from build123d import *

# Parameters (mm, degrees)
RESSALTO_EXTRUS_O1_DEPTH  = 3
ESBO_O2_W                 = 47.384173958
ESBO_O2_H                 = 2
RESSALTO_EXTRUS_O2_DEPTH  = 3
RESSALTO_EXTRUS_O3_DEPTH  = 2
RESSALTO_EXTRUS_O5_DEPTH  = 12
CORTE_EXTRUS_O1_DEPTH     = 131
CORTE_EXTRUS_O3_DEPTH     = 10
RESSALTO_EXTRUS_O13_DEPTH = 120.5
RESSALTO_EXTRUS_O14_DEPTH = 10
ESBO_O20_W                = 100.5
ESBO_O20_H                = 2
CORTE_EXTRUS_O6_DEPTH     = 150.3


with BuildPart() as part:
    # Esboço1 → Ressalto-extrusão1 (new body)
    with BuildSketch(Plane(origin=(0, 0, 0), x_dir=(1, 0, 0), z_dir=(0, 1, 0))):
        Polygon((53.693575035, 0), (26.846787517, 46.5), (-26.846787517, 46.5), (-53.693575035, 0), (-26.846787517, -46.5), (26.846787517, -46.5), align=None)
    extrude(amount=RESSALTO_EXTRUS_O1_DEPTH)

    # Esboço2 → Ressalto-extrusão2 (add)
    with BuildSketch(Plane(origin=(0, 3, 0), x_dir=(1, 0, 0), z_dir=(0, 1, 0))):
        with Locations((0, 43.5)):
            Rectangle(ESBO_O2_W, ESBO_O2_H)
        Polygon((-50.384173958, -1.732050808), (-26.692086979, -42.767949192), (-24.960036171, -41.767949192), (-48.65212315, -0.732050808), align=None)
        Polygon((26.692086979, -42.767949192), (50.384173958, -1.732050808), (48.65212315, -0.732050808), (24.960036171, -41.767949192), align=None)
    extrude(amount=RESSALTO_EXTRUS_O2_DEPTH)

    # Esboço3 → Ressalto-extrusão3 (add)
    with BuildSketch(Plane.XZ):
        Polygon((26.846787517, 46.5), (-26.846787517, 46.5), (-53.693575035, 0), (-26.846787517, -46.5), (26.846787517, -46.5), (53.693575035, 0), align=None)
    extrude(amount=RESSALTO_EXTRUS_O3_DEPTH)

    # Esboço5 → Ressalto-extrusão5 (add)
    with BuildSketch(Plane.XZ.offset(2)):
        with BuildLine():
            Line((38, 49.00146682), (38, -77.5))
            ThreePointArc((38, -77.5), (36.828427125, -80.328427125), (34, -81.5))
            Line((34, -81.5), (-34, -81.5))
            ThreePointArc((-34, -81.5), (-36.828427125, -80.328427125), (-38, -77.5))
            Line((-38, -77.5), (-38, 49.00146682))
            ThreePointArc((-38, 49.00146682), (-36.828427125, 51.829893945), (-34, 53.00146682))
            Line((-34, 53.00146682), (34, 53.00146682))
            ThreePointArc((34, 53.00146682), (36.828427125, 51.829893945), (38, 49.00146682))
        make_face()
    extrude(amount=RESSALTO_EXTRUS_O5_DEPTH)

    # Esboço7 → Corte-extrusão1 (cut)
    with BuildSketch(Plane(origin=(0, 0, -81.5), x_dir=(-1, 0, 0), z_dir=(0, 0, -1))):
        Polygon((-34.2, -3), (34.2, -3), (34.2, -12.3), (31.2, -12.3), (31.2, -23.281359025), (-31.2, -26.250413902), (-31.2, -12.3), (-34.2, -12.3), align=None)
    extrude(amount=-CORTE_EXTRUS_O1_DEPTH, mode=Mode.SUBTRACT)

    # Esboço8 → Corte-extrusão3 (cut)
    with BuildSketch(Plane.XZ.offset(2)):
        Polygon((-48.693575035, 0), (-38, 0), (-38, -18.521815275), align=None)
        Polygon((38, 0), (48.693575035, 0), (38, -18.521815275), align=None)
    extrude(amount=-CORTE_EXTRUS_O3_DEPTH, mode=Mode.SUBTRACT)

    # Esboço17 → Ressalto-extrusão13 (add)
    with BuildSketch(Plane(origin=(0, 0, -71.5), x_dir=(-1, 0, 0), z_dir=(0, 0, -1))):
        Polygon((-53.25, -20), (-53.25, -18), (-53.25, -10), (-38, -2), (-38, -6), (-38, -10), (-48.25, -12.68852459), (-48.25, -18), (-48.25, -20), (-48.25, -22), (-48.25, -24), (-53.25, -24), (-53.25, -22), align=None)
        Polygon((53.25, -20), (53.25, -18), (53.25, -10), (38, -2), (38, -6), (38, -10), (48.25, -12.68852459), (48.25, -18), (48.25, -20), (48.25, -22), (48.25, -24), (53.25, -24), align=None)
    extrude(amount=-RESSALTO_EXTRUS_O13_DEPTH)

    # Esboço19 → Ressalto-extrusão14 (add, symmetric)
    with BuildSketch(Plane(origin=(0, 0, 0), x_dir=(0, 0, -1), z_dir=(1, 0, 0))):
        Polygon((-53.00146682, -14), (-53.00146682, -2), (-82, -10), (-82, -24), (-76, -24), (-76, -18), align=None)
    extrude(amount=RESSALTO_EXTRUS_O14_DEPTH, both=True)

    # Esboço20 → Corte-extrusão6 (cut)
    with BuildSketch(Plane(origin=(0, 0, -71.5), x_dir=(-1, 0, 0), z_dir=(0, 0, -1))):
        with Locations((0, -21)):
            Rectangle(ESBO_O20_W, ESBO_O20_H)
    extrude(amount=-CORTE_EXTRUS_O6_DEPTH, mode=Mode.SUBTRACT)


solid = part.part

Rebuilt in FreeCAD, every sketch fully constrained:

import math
import FreeCAD as App
import Part
import Sketcher
from FreeCAD import Vector
Q = App.Units.Quantity


def add_polygon(sketch, points):
    """Adds a closed chain of lines whose ends are joined by coincident constraints."""
    first, n = sketch.GeometryCount, len(points)
    for a, b in zip(points, points[1:] + points[:1]):
        sketch.addGeometry(Part.LineSegment(App.Vector(*a, 0), App.Vector(*b, 0)), False)
    for i in range(n):
        sketch.addConstraint(Sketcher.Constraint("Coincident", first + i, 2, first + (i + 1) % n, 1))

doc = App.newDocument("Part")
body = doc.addObject("PartDesign::Body", "Body")

sketch1 = body.newObject("Sketcher::SketchObject", "Sketch")
sketch1.AttachmentSupport = (doc.getObject("XZ_Plane"), [""])
sketch1.MapMode = "FlatFace"
add_polygon(sketch1, [(53.693575, 0), (26.846788, -46.5), (-26.846788, -46.5), (-53.693575, 0), (-26.846788, 46.5), (26.846788, 46.5)])
sketch1.addConstraint([
    Sketcher.Constraint("Horizontal", 1),
    Sketcher.Constraint("Horizontal", 4),
    Sketcher.Constraint("Symmetric", 0, 2, 3, 2, -1, 1),
    Sketcher.Constraint("Symmetric", 2, 2, 5, 2, -1, 1),
    Sketcher.Constraint("PointOnObject", 2, 2, -1),
    Sketcher.Constraint("Parallel", 2, 5),
    Sketcher.Constraint("Vertical", 1, 2, 3, 2),
    Sketcher.Constraint("Angle", 0, Q("-120 deg")),
    Sketcher.Constraint("DistanceY", 1, 2, 3, 2, 93.0),
    Sketcher.Constraint("DistanceX", 1, 2, 1, 1, 53.693575),
])
pad1 = body.newObject("PartDesign::Pad", "Pad")
pad1.Profile = sketch1
pad1.Length = 3
pad1.Reversed = True

sketch2 = body.newObject("Sketcher::SketchObject", "Sketch001")
sketch2.AttachmentSupport = (doc.getObject("XZ_Plane"), [""])
sketch2.MapMode = "FlatFace"
sketch2.AttachmentOffset = App.Placement(Vector(0, 0, -3), App.Rotation())
add_polygon(sketch2, [(-23.692087, -44.5), (-23.692087, -42.5), (23.692087, -42.5), (23.692087, -44.5)])
add_polygon(sketch2, [(-50.384174, 1.732051), (-26.692087, 42.767949), (-24.960036, 41.767949), (-48.652123, 0.732051)])
add_polygon(sketch2, [(26.692087, 42.767949), (50.384174, 1.732051), (48.652123, 0.732051), (24.960036, 41.767949)])
sketch2.addConstraint([
    Sketcher.Constraint("Vertical", 0),
    Sketcher.Constraint("Horizontal", 1),
    Sketcher.Constraint("Vertical", 2),
    Sketcher.Constraint("Horizontal", 3),
    Sketcher.Constraint("Symmetric", 7, 2, 8, 2, -2),
    Sketcher.Constraint("Symmetric", 6, 2, 9, 2, -2),
    Sketcher.Constraint("Symmetric", 5, 2, 10, 2, -2),
    Sketcher.Constraint("Symmetric", 4, 2, 11, 2, -2),
    Sketcher.Constraint("Perpendicular", 4, 5),
    Sketcher.Constraint("Perpendicular", 5, 6),
    Sketcher.Constraint("Perpendicular", 6, 7),
    Sketcher.Constraint("DistanceY", 0, 1, 0, 2, 2.0),
    Sketcher.Constraint("Angle", 4, Q("60 deg")),
    Sketcher.Constraint("Distance", 5, 2.0),
    Sketcher.Constraint("DistanceX", 4, 2, 0, 2, 3.0),
    Sketcher.Constraint("DistanceY", 0, 2, -1, 1, 42.5),
    Sketcher.Constraint("DistanceY", 6, 2, 5, 2, 41.035898),
    Sketcher.Constraint("DistanceX", 1, 1, 1, 2, 47.384174),
    Sketcher.Constraint("DistanceY", -1, 1, 4, 2, 42.767949),
    Sketcher.Constraint("DistanceX", 5, 2, 8, 2, 75.34421),
])
pad2 = body.newObject("PartDesign::Pad", "Pad001")
pad2.Profile = sketch2
pad2.Length = 3
pad2.Reversed = True

sketch3 = body.newObject("Sketcher::SketchObject", "Sketch002")
sketch3.AttachmentSupport = (doc.getObject("XZ_Plane"), [""])
sketch3.MapMode = "FlatFace"
add_polygon(sketch3, [(26.846788, 46.5), (-26.846788, 46.5), (-53.693575, 0), (-26.846788, -46.5), (26.846788, -46.5), (53.693575, 0)])
sketch3.addConstraint([
    Sketcher.Constraint("Horizontal", 0),
    Sketcher.Constraint("Horizontal", 3),
    Sketcher.Constraint("Symmetric", 0, 2, 3, 2, -1, 1),
    Sketcher.Constraint("Symmetric", 1, 2, 4, 2, -1, 1),
    Sketcher.Constraint("PointOnObject", 1, 2, -1),
    Sketcher.Constraint("Parallel", 2, 5),
    Sketcher.Constraint("Vertical", 0, 2, 2, 2),
    Sketcher.Constraint("Angle", 1, Q("-120 deg")),
    Sketcher.Constraint("DistanceY", 2, 2, 0, 2, 93.0),
    Sketcher.Constraint("DistanceX", 0, 2, 0, 1, 53.693575),
])
pad3 = body.newObject("PartDesign::Pad", "Pad002")
pad3.Profile = sketch3
pad3.Length = 2

sketch4 = body.newObject("Sketcher::SketchObject", "Sketch003")
sketch4.AttachmentSupport = (doc.getObject("XZ_Plane"), [""])
sketch4.MapMode = "FlatFace"
sketch4.AttachmentOffset = App.Placement(Vector(0, 0, 2), App.Rotation())
sketch4.addGeometry([
    Part.LineSegment(Vector(38, -77.5, 0), Vector(38, 49.001467, 0)),
    Part.ArcOfCircle(Part.Circle(Vector(34, 49.001467, 0), Vector(0, 0, 1), 4), math.radians(0), math.radians(90)),
    Part.LineSegment(Vector(34, 53.001467, 0), Vector(-34, 53.001467, 0)),
    Part.ArcOfCircle(Part.Circle(Vector(-34, 49.001467, 0), Vector(0, 0, 1), 4), math.radians(90), math.radians(180)),
    Part.LineSegment(Vector(-38, 49.001467, 0), Vector(-38, -77.5, 0)),
    Part.ArcOfCircle(Part.Circle(Vector(-34, -77.5, 0), Vector(0, 0, 1), 4), math.radians(180), math.radians(270)),
    Part.LineSegment(Vector(-34, -81.5, 0), Vector(34, -81.5, 0)),
    Part.ArcOfCircle(Part.Circle(Vector(34, -77.5, 0), Vector(0, 0, 1), 4), math.radians(-90), math.radians(0)),
], False)
sketch4.addConstraint([
    Sketcher.Constraint("Tangent", 0, 2, 1, 1),
    Sketcher.Constraint("Tangent", 1, 2, 2, 1),
    Sketcher.Constraint("Tangent", 2, 2, 3, 1),
    Sketcher.Constraint("Tangent", 3, 2, 4, 1),
    Sketcher.Constraint("Tangent", 4, 2, 5, 1),
    Sketcher.Constraint("Tangent", 5, 2, 6, 1),
    Sketcher.Constraint("Tangent", 6, 2, 7, 1),
    Sketcher.Constraint("Tangent", 7, 2, 0, 1),
    Sketcher.Constraint("Vertical", 0),
    Sketcher.Constraint("Horizontal", 2),
    Sketcher.Constraint("Vertical", 4),
    Sketcher.Constraint("Horizontal", 6),
    Sketcher.Constraint("Equal", 1, 3),
    Sketcher.Constraint("Equal", 3, 5),
    Sketcher.Constraint("Equal", 5, 7),
    Sketcher.Constraint("Radius", 1, 4.0),
    Sketcher.Constraint("DistanceX", 2, 2, 2, 1, 68.0),
    Sketcher.Constraint("DistanceX", -1, 1, 1, 3, 34.0),
    Sketcher.Constraint("DistanceY", 5, 3, -1, 1, 77.5),
    Sketcher.Constraint("DistanceY", 0, 1, 0, 2, 126.501467),
])
pad4 = body.newObject("PartDesign::Pad", "Pad003")
pad4.Profile = sketch4
pad4.Length = 12

sketch5 = body.newObject("Sketcher::SketchObject", "Sketch004")
sketch5.AttachmentSupport = (doc.getObject("XY_Plane"), [""])
sketch5.MapMode = "FlatFace"
sketch5.AttachmentOffset = App.Placement(Vector(0, 0, -81.5), App.Rotation())
add_polygon(sketch5, [(-34.2, -3), (34.2, -3), (34.2, -12.3), (31.2, -12.3), (31.2, -26.250414), (-31.2, -23.281359), (-31.2, -12.3), (-34.2, -12.3)])
sketch5.addConstraint([
    Sketcher.Constraint("Horizontal", 0),
    Sketcher.Constraint("Vertical", 1),
    Sketcher.Constraint("Horizontal", 2),
    Sketcher.Constraint("Vertical", 3),
    Sketcher.Constraint("Vertical", 5),
    Sketcher.Constraint("Horizontal", 6),
    Sketcher.Constraint("Vertical", 7),
    Sketcher.Constraint("Symmetric", 2, 2, 5, 2, -2),
    Sketcher.Constraint("Equal", 2, 6),
    Sketcher.Constraint("DistanceX", 2, 2, 2, 1, 3.0),
    Sketcher.Constraint("DistanceX", 0, 1, 0, 2, 68.4),
    Sketcher.Constraint("DistanceY", 1, 2, 1, 1, 9.3),
    Sketcher.Constraint("DistanceY", 0, 2, -1, 1, 3.0),
    Sketcher.Constraint("DistanceY", 5, 1, 5, 2, 10.981359),
    Sketcher.Constraint("DistanceY", 3, 2, 3, 1, 13.950414),
])
pocket1 = body.newObject("PartDesign::Pocket", "Pocket")
pocket1.Profile = sketch5
pocket1.Length = 131
pocket1.Reversed = True

sketch6 = body.newObject("Sketcher::SketchObject", "Sketch005")
sketch6.AttachmentSupport = (doc.getObject("XZ_Plane"), [""])
sketch6.MapMode = "FlatFace"
sketch6.AttachmentOffset = App.Placement(Vector(0, 0, 2), App.Rotation())
add_polygon(sketch6, [(-38, 0), (-48.693575, 0), (-38, -18.521815)])
add_polygon(sketch6, [(48.693575, 0), (38, 0), (38, -18.521815)])
sketch6.addConstraint([
    Sketcher.Constraint("Horizontal", 0),
    Sketcher.Constraint("Vertical", 2),
    Sketcher.Constraint("Horizontal", 3),
    Sketcher.Constraint("Vertical", 4),
    Sketcher.Constraint("Symmetric", 2, 2, 3, 2, -1, 1),
    Sketcher.Constraint("Symmetric", 0, 2, 5, 2, -2),
    Sketcher.Constraint("Horizontal", 1, 2, 4, 2),
    Sketcher.Constraint("Angle", 1, Q("-60 deg")),
    Sketcher.Constraint("DistanceX", 1, 2, -1, 1, 38.0),
    Sketcher.Constraint("Distance", 1, 21.38715),
])
pocket2 = body.newObject("PartDesign::Pocket", "Pocket001")
pocket2.Profile = sketch6
pocket2.Length = 10

sketch7 = body.newObject("Sketcher::SketchObject", "Sketch006")
sketch7.AttachmentSupport = (doc.getObject("XY_Plane"), [""])
sketch7.MapMode = "FlatFace"
sketch7.AttachmentOffset = App.Placement(Vector(0, 0, -71.5), App.Rotation())
add_polygon(sketch7, [(53.25, -10), (53.25, -24), (48.25, -24), (48.25, -12.688525), (38, -10), (38, -2)])
add_polygon(sketch7, [(-53.25, -10), (-38, -2), (-38, -10), (-48.25, -12.688525), (-48.25, -24), (-53.25, -24)])
sketch7.addConstraint([
    Sketcher.Constraint("Vertical", 0),
    Sketcher.Constraint("Horizontal", 1),
    Sketcher.Constraint("Vertical", 2),
    Sketcher.Constraint("Vertical", 4),
    Sketcher.Constraint("Vertical", 7),
    Sketcher.Constraint("Vertical", 9),
    Sketcher.Constraint("Horizontal", 10),
    Sketcher.Constraint("Vertical", 11),
    Sketcher.Constraint("Symmetric", 4, 2, 6, 2, -2),
    Sketcher.Constraint("Symmetric", 2, 2, 8, 2, -2),
    Sketcher.Constraint("Symmetric", 0, 2, 10, 2, -2),
    Sketcher.Constraint("Horizontal", 3, 2, 5, 2),
    Sketcher.Constraint("Horizontal", 5, 2, 7, 2),
    Sketcher.Constraint("Horizontal", 7, 2, 11, 2),
    Sketcher.Constraint("DistanceX", 1, 2, 1, 1, 5.0),
    Sketcher.Constraint("DistanceY", 0, 2, 0, 1, 14.0),
    Sketcher.Constraint("DistanceY", 4, 1, 4, 2, 8.0),
    Sketcher.Constraint("DistanceY", 0, 2, -1, 1, 24.0),
    Sketcher.Constraint("DistanceX", -1, 1, 3, 2, 38.0),
    Sketcher.Constraint("DistanceX", 8, 2, 2, 2, 96.5),
    Sketcher.Constraint("Distance", 3, 10.596729),
])
pad5 = body.newObject("PartDesign::Pad", "Pad004")
pad5.Profile = sketch7
pad5.Length = 120.5

sketch8 = body.newObject("Sketcher::SketchObject", "Sketch007")
sketch8.AttachmentSupport = (doc.getObject("YZ_Plane"), [""])
sketch8.MapMode = "FlatFace"
add_polygon(sketch8, [(-14, 53.001467), (-2, 53.001467), (-10, 82), (-24, 82), (-24, 76), (-18, 76)])
sketch8.addConstraint([
    Sketcher.Constraint("Horizontal", 0),
    Sketcher.Constraint("Horizontal", 2),
    Sketcher.Constraint("Vertical", 3),
    Sketcher.Constraint("Horizontal", 4),
    Sketcher.Constraint("Equal", 4, 3),
    Sketcher.Constraint("DistanceX", 0, 1, 0, 2, 12.0),
    Sketcher.Constraint("DistanceX", 2, 2, 2, 1, 14.0),
    Sketcher.Constraint("DistanceX", 4, 1, 4, 2, 6.0),
    Sketcher.Constraint("DistanceX", 0, 2, -1, 1, 2.0),
    Sketcher.Constraint("DistanceX", 1, 2, -1, 1, 10.0),
    Sketcher.Constraint("DistanceY", -1, 1, 1, 2, 82.0),
    Sketcher.Constraint("Distance", 5, 23.34379),
])
pad6 = body.newObject("PartDesign::Pad", "Pad005")
pad6.Profile = sketch8
pad6.Length = 20
pad6.Midplane = True

sketch9 = body.newObject("Sketcher::SketchObject", "Sketch008")
sketch9.AttachmentSupport = (doc.getObject("XY_Plane"), [""])
sketch9.MapMode = "FlatFace"
sketch9.AttachmentOffset = App.Placement(Vector(0, 0, -71.5), App.Rotation())
add_polygon(sketch9, [(50.25, -20), (50.25, -22), (-50.25, -22), (-50.25, -20)])
sketch9.addConstraint([
    Sketcher.Constraint("Vertical", 0),
    Sketcher.Constraint("Horizontal", 1),
    Sketcher.Constraint("Vertical", 2),
    Sketcher.Constraint("Horizontal", 3),
    Sketcher.Constraint("DistanceY", 0, 2, 0, 1, 2.0),
    Sketcher.Constraint("DistanceX", 1, 2, 1, 1, 100.5),
    Sketcher.Constraint("DistanceY", 0, 2, -1, 1, 22.0),
    Sketcher.Constraint("DistanceX", -1, 1, 0, 2, 50.25),
])
pocket3 = body.newObject("PartDesign::Pocket", "Pocket002")
pocket3.Profile = sketch9
pocket3.Length = 150.3
pocket3.Reversed = True

doc.recompute()
